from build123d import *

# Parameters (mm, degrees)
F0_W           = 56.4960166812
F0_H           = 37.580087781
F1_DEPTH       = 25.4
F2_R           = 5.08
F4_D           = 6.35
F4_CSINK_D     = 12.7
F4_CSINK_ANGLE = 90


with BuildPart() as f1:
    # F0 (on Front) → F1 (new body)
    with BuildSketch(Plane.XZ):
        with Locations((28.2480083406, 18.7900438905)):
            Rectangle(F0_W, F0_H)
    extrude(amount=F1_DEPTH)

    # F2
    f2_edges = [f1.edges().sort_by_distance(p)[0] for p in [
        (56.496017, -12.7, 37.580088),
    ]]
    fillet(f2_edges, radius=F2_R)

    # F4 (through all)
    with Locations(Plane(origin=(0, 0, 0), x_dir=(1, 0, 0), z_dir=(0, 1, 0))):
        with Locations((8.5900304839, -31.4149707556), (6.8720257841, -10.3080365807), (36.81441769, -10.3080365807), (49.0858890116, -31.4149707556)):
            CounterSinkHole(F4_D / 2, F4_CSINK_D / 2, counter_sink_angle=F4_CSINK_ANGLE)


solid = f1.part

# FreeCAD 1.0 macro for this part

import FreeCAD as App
import Part
import Sketcher

V = App.Vector
Q = App.Units.Quantity


def edges_at(feature, points):
    """Names of the edges that pass closest to the given points."""
    edges = feature.Shape.Edges
    near = lambda p: min(range(len(edges)), key=lambda i: edges[i].distToShape(Part.Vertex(*p))[0])
    return sorted({f"Edge{near(p) + 1}" for p in points})


def add_polygon(sketch, points):
    """Adds a closed chain of lines whose ends are joined by coincident constraints."""
    first, n = sketch.GeometryCount, len(points)
    for a, b in zip(points, points[1:] + points[:1]):
        sketch.addGeometry(Part.LineSegment(App.Vector(*a, 0), App.Vector(*b, 0)), False)
    for i in range(n):
        sketch.addConstraint(Sketcher.Constraint("Coincident", first + i, 2, first + (i + 1) % n, 1))

doc = App.newDocument("Part")
params = doc.addObject("Spreadsheet::Sheet", "Params")
for row, (alias, value) in enumerate([
    ("pad1_length", "1 in"),
    ("fillet_radius", "0.2 in"),
    ("sketch2_diameter", "0.25 in"),
    ("hole_diameter", "0.25 in"),
    ("hole_csink_diameter", "0.5 in"),
], start=1):
    params.set(f"A{row}", alias)
    params.set(f"B{row}", "=" + value)
    params.setAlias(f"B{row}", alias)

body = doc.addObject("PartDesign::Body", "Body")

# Sketch on XZ plane
sketch1 = body.newObject("Sketcher::SketchObject", "Sketch")
sketch1.AttachmentSupport = (doc.getObject("XZ_Plane"), [""])
sketch1.MapMode = "FlatFace"
add_polygon(sketch1, [(0, 38), (0, 0), (56, 0), (56, 38)])  # lines 0-3
sketch1.addConstraint([
    Sketcher.Constraint("Vertical", 0),
    Sketcher.Constraint("Horizontal", 1),
    Sketcher.Constraint("Vertical", 2),
    Sketcher.Constraint("Horizontal", 3),
    Sketcher.Constraint("Coincident", 0, 2, -1, 1),
    Sketcher.Constraint("DistanceX", 1, 1, 1, 2, 56.496017),
    Sketcher.Constraint("DistanceY", 0, 2, 0, 1, 37.580088),
])
pad1 = body.newObject("PartDesign::Pad", "Pad")
pad1.Profile = sketch1
pad1.setExpression("Length", "Params.pad1_length")
doc.recompute()

fillet = body.newObject("PartDesign::Fillet", "Fillet")
fillet.Base = (pad1, edges_at(pad1, [(56.496, -12.7, 37.58)]))
fillet.setExpression("Radius", "Params.fillet_radius")

# Sketch on XZ plane
sketch2 = body.newObject("Sketcher::SketchObject", "Sketch001")
sketch2.AttachmentSupport = (doc.getObject("XZ_Plane"), [""])
sketch2.MapMode = "FlatFace"
sketch2.addGeometry([
    Part.Circle(V(8.6, 31.4, 0), V(0, 0, 1), 3.2),
    Part.Circle(V(6.9, 10.3, 0), V(0, 0, 1), 3.2),
    Part.Circle(V(36.8, 10.3, 0), V(0, 0, 1), 3.2),
    Part.Circle(V(49.1, 31.4, 0), V(0, 0, 1), 3.2),
], False)
sketch2.addConstraint([
    Sketcher.Constraint("Equal", 0, 1),
    Sketcher.Constraint("Equal", 1, 2),
    Sketcher.Constraint("Equal", 2, 3),
    Sketcher.Constraint("Horizontal", 1, 3, 2, 3),
    Sketcher.Constraint("Horizontal", 0, 3, 3, 3),
    Sketcher.Constraint("Diameter", 0, Q("0.25 in")),
    Sketcher.Constraint("DistanceX", -1, 1, 0, 3, 8.59003),
    Sketcher.Constraint("DistanceY", -1, 1, 0, 3, 31.414971),
    Sketcher.Constraint("DistanceX", -1, 1, 3, 3, 49.085889),
    Sketcher.Constraint("DistanceX", 1, 3, 2, 3, 29.942392),
    Sketcher.Constraint("DistanceX", 2, 3, 3, 3, 12.271471),
    Sketcher.Constraint("DistanceY", -1, 1, 1, 3, 10.308037),
])
sketch2.setExpression("Constraints[5]", "Params.sketch2_diameter")
doc.recompute()
hole = body.newObject("PartDesign::Hole", "Hole")
hole.Profile = sketch2
hole.ThreadType = "None"
hole.setExpression("Diameter", "Params.hole_diameter")
hole.DepthType = "ThroughAll"
hole.HoleCutType = "Countersink"
hole.setExpression("HoleCutDiameter", "Params.hole_csink_diameter")
hole.HoleCutCountersinkAngle = 90
hole.Reversed = True

doc.recompute()
